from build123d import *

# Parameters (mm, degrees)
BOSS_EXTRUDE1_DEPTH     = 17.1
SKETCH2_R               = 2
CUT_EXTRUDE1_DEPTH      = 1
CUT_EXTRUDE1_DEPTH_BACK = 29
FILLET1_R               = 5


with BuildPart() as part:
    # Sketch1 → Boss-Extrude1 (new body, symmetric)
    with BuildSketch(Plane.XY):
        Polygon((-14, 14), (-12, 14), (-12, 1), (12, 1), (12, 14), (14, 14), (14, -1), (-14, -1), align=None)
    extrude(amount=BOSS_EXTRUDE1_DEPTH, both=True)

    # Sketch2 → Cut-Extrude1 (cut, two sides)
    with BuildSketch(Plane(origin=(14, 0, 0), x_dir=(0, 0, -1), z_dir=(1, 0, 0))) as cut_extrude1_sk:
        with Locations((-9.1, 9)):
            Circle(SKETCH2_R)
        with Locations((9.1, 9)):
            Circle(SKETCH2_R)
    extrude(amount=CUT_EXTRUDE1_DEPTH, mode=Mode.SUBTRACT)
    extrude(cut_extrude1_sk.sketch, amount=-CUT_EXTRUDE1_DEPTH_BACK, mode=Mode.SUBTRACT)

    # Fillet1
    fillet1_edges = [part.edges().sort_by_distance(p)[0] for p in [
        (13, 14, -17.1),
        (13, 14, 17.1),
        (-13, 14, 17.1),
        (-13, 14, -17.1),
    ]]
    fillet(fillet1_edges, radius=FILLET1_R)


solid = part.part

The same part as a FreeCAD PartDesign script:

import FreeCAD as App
import Part
import Sketcher
from FreeCAD import Vector
Q = App.Units.Quantity


def edges_at(feature, points):
    """Names of the edges that pass closest to the given points."""
    edges = feature.Shape.Edges
    near = lambda p: min(range(len(edges)), key=lambda i: edges[i].distToShape(Part.Vertex(*p))[0])
    return sorted({f"Edge{near(p) + 1}" for p in points})


def add_polygon(sketch, points):
    """Adds a closed chain of lines whose ends are joined by coincident constraints."""
    first, n = sketch.GeometryCount, len(points)
    for a, b in zip(points, points[1:] + points[:1]):
        sketch.addGeometry(Part.LineSegment(App.Vector(*a, 0), App.Vector(*b, 0)), False)
    for i in range(n):
        sketch.addConstraint(Sketcher.Constraint("Coincident", first + i, 2, first + (i + 1) % n, 1))

doc = App.newDocument("Part")
body = doc.addObject("PartDesign::Body", "Body")

# Sketch on XY plane
sketch1 = body.newObject("Sketcher::SketchObject", "Sketch")
sketch1.AttachmentSupport = (doc.getObject("XY_Plane"), [""])
sketch1.MapMode = "FlatFace"
add_polygon(sketch1, [(-12, 14), (-14, 14), (-14, -1), (14, -1), (14, 14), (12, 14), (12, 1), (-12, 1)])  # lines 0-7
sketch1.addConstraint(Sketcher.Constraint("Horizontal", 0))
sketch1.addConstraint(Sketcher.Constraint("Vertical", 1))
sketch1.addConstraint(Sketcher.Constraint("Horizontal", 2))
sketch1.addConstraint(Sketcher.Constraint("Vertical", 3))
sketch1.addConstraint(Sketcher.Constraint("Horizontal", 4))
sketch1.addConstraint(Sketcher.Constraint("Vertical", 5))
sketch1.addConstraint(Sketcher.Constraint("Horizontal", 6))
sketch1.addConstraint(Sketcher.Constraint("Vertical", 7))
sketch1.addConstraint(Sketcher.Constraint("Symmetric", 0, 2, 3, 2, -2))
sketch1.addConstraint(Sketcher.Constraint("Equal", 0, 4))
sketch1.addConstraint(Sketcher.Constraint("DistanceX", 0, 2, 0, 1, Q("2 mm")))
sketch1.addConstraint(Sketcher.Constraint("DistanceX", 2, 1, 2, 2, Q("28 mm")))
sketch1.addConstraint(Sketcher.Constraint("DistanceY", 1, 2, 1, 1, Q("15 mm")))
sketch1.addConstraint(Sketcher.Constraint("DistanceY", 5, 2, 5, 1, Q("13 mm")))
sketch1.addConstraint(Sketcher.Constraint("DistanceY", -1, 1, 0, 2, Q("14 mm")))
pad1 = body.newObject("PartDesign::Pad", "Pad")
pad1.Profile = sketch1
pad1.Length = 34.2
pad1.Midplane = True

# Sketch on YZ plane
sketch2 = body.newObject("Sketcher::SketchObject", "Sketch001")
sketch2.AttachmentSupport = (doc.getObject("YZ_Plane"), [""])
sketch2.MapMode = "FlatFace"
sketch2.AttachmentOffset = App.Placement(Vector(0, 0, 14), App.Rotation())
sketch2.addGeometry(Part.Circle(Vector(9, 9.1, 0), Vector(0, 0, 1), 2), False)
sketch2.addGeometry(Part.Circle(Vector(9, -9.1, 0), Vector(0, 0, 1), 2), False)
sketch2.addConstraint(Sketcher.Constraint("Equal", 0, 1))
sketch2.addConstraint(Sketcher.Constraint("Symmetric", 0, 3, 1, 3, -1))
sketch2.addConstraint(Sketcher.Constraint("Diameter", 0, Q("4 mm")))
sketch2.addConstraint(Sketcher.Constraint("DistanceX", -1, 1, 0, 3, Q("9 mm")))
sketch2.addConstraint(Sketcher.Constraint("DistanceY", -1, 1, 0, 3, Q("9.1 mm")))
pocket1 = body.newObject("PartDesign::Pocket", "Pocket")
pocket1.Profile = sketch2
pocket1.Type = "ThroughAll"
pocket1.Midplane = True
doc.recompute()

fillet = body.newObject("PartDesign::Fillet", "Fillet")
fillet.Base = (pocket1, edges_at(pocket1, [
    (13, 14, -17.1),
    (13, 14, 17.1),
    (-13, 14, 17.1),
    (-13, 14, -17.1),
]))
fillet.Radius = 5

doc.recompute()
